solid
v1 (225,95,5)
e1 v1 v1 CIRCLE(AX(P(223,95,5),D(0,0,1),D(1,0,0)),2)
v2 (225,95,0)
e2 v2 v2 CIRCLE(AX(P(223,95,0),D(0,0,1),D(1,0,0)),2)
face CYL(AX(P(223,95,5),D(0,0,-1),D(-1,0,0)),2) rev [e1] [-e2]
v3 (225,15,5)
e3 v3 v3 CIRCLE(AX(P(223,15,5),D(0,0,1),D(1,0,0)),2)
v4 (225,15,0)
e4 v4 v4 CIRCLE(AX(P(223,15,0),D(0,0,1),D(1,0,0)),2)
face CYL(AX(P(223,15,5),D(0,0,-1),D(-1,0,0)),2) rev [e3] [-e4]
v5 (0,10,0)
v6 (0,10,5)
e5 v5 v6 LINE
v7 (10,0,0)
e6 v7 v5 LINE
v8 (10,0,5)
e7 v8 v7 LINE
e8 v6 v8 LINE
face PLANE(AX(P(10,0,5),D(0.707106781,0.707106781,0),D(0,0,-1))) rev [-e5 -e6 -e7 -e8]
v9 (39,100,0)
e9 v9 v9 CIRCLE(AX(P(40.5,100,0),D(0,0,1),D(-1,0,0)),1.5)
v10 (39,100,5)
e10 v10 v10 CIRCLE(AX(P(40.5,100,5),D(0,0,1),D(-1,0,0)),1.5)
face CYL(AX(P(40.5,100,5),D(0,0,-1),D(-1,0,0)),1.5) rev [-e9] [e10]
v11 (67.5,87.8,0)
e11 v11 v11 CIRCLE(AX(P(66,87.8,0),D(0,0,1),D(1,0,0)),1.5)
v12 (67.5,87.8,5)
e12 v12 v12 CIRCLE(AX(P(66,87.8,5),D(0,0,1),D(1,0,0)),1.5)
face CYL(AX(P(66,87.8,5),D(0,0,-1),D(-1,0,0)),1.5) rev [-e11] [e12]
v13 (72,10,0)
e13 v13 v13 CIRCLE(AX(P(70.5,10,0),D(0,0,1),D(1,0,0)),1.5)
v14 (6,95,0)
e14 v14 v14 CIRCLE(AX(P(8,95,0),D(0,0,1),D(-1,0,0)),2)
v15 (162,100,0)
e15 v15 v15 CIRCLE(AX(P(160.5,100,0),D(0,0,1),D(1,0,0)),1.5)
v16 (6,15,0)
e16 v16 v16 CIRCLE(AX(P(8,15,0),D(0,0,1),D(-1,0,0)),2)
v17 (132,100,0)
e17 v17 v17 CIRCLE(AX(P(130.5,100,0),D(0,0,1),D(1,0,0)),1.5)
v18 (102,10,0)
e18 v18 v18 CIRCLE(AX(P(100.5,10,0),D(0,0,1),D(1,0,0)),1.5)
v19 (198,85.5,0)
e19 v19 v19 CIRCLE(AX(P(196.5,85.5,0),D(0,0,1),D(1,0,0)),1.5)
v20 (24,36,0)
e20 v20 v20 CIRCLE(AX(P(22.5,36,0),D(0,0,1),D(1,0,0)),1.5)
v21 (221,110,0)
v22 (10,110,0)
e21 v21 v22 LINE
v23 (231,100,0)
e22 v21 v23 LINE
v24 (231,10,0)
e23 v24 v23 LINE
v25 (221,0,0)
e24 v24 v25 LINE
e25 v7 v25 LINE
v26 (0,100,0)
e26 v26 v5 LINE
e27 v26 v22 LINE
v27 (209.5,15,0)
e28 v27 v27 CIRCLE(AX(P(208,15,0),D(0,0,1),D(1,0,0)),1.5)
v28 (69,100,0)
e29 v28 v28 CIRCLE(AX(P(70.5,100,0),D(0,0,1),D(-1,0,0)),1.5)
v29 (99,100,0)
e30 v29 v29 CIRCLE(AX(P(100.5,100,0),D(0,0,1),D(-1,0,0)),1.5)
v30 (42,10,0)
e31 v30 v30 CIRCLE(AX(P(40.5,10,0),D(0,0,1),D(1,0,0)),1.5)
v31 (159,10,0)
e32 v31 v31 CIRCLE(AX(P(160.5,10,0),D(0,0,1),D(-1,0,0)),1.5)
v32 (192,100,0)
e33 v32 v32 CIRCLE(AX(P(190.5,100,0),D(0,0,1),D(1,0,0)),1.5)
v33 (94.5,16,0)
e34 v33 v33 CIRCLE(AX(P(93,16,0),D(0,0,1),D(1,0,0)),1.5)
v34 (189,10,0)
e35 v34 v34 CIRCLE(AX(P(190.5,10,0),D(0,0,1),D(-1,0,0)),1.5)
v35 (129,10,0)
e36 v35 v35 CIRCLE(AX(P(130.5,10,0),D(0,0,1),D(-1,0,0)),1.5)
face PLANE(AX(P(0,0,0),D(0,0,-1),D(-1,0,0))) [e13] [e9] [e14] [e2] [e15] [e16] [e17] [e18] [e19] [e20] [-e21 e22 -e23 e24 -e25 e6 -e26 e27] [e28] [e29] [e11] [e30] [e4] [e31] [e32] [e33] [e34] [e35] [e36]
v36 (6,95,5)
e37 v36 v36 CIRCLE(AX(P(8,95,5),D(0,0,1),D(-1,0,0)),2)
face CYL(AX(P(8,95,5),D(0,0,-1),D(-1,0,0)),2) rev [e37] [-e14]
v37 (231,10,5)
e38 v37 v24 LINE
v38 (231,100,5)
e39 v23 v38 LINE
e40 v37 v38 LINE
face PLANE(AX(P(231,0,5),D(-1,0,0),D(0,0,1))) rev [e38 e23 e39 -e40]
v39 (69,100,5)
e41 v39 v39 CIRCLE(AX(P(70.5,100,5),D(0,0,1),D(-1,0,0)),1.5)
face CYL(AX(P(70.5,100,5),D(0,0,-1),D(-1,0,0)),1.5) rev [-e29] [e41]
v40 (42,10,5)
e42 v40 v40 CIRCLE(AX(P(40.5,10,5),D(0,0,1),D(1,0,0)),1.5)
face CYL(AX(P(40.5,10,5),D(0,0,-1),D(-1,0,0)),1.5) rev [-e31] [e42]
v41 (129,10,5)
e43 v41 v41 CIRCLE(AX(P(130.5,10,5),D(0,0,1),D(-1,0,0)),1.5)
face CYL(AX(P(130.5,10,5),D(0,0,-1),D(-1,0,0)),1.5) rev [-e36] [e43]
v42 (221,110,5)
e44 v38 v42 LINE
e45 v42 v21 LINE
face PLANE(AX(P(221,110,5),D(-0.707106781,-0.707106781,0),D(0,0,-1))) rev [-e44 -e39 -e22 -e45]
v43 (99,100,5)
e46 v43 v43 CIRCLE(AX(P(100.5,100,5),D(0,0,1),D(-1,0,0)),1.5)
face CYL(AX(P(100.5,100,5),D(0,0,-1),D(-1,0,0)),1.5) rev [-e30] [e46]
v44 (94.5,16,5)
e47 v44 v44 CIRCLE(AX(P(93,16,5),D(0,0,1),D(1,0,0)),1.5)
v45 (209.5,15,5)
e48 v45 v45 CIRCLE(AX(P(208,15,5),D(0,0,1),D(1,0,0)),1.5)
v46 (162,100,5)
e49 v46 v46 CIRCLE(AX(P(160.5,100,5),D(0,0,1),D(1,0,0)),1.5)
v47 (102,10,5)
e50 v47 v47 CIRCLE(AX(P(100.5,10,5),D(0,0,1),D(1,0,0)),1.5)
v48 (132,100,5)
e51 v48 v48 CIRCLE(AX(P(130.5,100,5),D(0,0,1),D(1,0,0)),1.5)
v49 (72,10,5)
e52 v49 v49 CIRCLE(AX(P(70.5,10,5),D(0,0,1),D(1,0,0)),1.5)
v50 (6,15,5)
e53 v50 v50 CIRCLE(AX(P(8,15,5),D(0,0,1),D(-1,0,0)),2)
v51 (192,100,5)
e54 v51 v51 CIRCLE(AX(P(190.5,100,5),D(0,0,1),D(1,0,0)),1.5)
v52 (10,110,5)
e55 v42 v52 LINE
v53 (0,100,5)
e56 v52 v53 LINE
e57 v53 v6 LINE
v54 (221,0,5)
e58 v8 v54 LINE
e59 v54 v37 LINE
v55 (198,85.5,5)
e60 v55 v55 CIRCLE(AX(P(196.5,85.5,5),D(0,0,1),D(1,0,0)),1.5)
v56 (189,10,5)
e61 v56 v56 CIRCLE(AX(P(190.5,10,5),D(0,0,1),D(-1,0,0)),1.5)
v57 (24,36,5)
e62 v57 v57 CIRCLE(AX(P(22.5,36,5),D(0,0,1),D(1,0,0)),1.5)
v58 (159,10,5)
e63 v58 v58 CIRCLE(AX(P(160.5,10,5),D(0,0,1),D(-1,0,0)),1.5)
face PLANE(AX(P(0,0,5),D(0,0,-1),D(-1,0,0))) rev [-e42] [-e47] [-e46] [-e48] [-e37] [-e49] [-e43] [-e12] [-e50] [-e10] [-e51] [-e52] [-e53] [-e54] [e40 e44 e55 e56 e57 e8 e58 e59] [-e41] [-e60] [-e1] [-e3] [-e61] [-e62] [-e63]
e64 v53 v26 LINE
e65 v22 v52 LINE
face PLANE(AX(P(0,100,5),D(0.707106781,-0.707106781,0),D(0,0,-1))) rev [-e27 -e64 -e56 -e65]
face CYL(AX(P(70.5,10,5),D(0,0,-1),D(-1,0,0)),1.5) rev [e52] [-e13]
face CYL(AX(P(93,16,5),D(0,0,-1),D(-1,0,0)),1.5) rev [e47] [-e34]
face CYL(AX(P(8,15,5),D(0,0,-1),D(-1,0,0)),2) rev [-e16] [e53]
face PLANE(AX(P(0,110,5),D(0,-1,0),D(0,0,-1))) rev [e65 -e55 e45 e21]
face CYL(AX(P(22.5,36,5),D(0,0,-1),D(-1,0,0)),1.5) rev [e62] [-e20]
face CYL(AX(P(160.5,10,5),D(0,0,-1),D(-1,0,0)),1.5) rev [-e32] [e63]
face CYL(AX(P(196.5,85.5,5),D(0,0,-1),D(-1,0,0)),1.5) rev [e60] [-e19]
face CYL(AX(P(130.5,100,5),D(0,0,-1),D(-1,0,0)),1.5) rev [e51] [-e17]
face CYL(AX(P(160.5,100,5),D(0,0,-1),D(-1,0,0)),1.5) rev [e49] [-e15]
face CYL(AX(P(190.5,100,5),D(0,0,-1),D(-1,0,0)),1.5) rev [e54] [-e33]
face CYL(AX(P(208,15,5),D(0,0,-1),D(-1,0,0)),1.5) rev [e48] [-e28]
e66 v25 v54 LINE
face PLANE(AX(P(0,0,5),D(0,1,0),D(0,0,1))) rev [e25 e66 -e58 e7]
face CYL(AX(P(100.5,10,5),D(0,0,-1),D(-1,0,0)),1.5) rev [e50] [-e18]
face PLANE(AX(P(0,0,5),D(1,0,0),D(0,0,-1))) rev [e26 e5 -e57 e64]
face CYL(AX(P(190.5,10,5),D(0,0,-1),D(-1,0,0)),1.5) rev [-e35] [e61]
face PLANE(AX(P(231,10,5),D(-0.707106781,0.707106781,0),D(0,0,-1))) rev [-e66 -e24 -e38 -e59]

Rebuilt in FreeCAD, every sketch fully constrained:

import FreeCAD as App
import Part
import Sketcher


def edges_at(feature, points):
    """Names of the edges that pass closest to the given points."""
    edges = feature.Shape.Edges
    near = lambda p: min(range(len(edges)), key=lambda i: edges[i].distToShape(Part.Vertex(*p))[0])
    return sorted({f"Edge{near(p) + 1}" for p in points})


def add_polygon(sketch, points):
    """Adds a closed chain of lines whose ends are joined by coincident constraints."""
    first, n = sketch.GeometryCount, len(points)
    for a, b in zip(points, points[1:] + points[:1]):
        sketch.addGeometry(Part.LineSegment(App.Vector(*a, 0), App.Vector(*b, 0)), False)
    for i in range(n):
        sketch.addConstraint(Sketcher.Constraint("Coincident", first + i, 2, first + (i + 1) % n, 1))

doc = App.newDocument("Part")
body = doc.addObject("PartDesign::Body", "Body")

# Sketch on XY plane
sketch1 = doc.addObject("Sketcher::SketchObject", "Sketch")
body.addObject(sketch1)
sketch1.AttachmentSupport = (doc.XY_Plane, [""])
sketch1.MapMode = "FlatFace"
add_polygon(sketch1, [(0, 110), (0, 0), (231, 0), (231, 110)])  # lines 0-3
sketch1.addGeometry(Part.Circle(App.Vector(8, 15, 0), App.Vector(0, 0, 1), 2), False)  # 4
sketch1.addGeometry(Part.Circle(App.Vector(40.5, 10, 0), App.Vector(0, 0, 1), 1.5), False)  # 5
sketch1.addGeometry(Part.Circle(App.Vector(70.5, 10, 0), App.Vector(0, 0, 1), 1.5), False)  # 6
sketch1.addGeometry(Part.Circle(App.Vector(100.5, 10, 0), App.Vector(0, 0, 1), 1.5), False)  # 7
sketch1.addGeometry(Part.Circle(App.Vector(93, 16, 0), App.Vector(0, 0, 1), 1.5), False)  # 8
sketch1.addGeometry(Part.Circle(App.Vector(22.5, 36, 0), App.Vector(0, 0, 1), 1.5), False)  # 9
sketch1.addGeometry(Part.Circle(App.Vector(130.5, 10, 0), App.Vector(0, 0, 1), 1.5), False)  # 10
sketch1.addGeometry(Part.Circle(App.Vector(160.5, 10, 0), App.Vector(0, 0, 1), 1.5), False)  # 11
sketch1.addGeometry(Part.Circle(App.Vector(190.5, 10, 0), App.Vector(0, 0, 1), 1.5), False)  # 12
sketch1.addGeometry(Part.Circle(App.Vector(208, 15, 0), App.Vector(0, 0, 1), 1.5), False)  # 13
sketch1.addGeometry(Part.Circle(App.Vector(223, 15, 0), App.Vector(0, 0, 1), 2), False)  # 14
sketch1.addGeometry(Part.Circle(App.Vector(8, 95, 0), App.Vector(0, 0, 1), 2), False)  # 15
sketch1.addGeometry(Part.Circle(App.Vector(40.5, 100, 0), App.Vector(0, 0, 1), 1.5), False)  # 16
sketch1.addGeometry(Part.Circle(App.Vector(66, 87.8, 0), App.Vector(0, 0, 1), 1.5), False)  # 17
sketch1.addGeometry(Part.Circle(App.Vector(70.5, 100, 0), App.Vector(0, 0, 1), 1.5), False)  # 18
sketch1.addGeometry(Part.Circle(App.Vector(100.5, 100, 0), App.Vector(0, 0, 1), 1.5), False)  # 19
sketch1.addGeometry(Part.Circle(App.Vector(130.5, 100, 0), App.Vector(0, 0, 1), 1.5), False)  # 20
sketch1.addGeometry(Part.Circle(App.Vector(160.5, 100, 0), App.Vector(0, 0, 1), 1.5), False)  # 21
sketch1.addGeometry(Part.Circle(App.Vector(196.5, 85.5, 0), App.Vector(0, 0, 1), 1.5), False)  # 22
sketch1.addGeometry(Part.Circle(App.Vector(190.5, 100, 0), App.Vector(0, 0, 1), 1.5), False)  # 23
sketch1.addGeometry(Part.Circle(App.Vector(223, 95, 0), App.Vector(0, 0, 1), 2), False)  # 24
sketch1.addConstraint([
    Sketcher.Constraint("Vertical", 0),
    Sketcher.Constraint("Horizontal", 1),
    Sketcher.Constraint("Vertical", 2),
    Sketcher.Constraint("Horizontal", 3),
    Sketcher.Constraint("Coincident", 0, 2, -1, 1),
    Sketcher.Constraint("Equal", 5, 6),
    Sketcher.Constraint("Equal", 6, 7),
    Sketcher.Constraint("Equal", 7, 8),
    Sketcher.Constraint("Equal", 8, 9),
    Sketcher.Constraint("Equal", 9, 10),
    Sketcher.Constraint("Equal", 10, 11),
    Sketcher.Constraint("Equal", 11, 12),
    Sketcher.Constraint("Equal", 12, 13),
    Sketcher.Constraint("Equal", 4, 14),
    Sketcher.Constraint("Equal", 14, 15),
    Sketcher.Constraint("Equal", 13, 16),
    Sketcher.Constraint("Equal", 16, 17),
    Sketcher.Constraint("Equal", 17, 18),
    Sketcher.Constraint("Equal", 18, 19),
    Sketcher.Constraint("Equal", 19, 20),
    Sketcher.Constraint("Equal", 20, 21),
    Sketcher.Constraint("Equal", 21, 22),
    Sketcher.Constraint("Equal", 22, 23),
    Sketcher.Constraint("Equal", 15, 24),
    Sketcher.Constraint("Horizontal", 5, 3, 6, 3),
    Sketcher.Constraint("Horizontal", 6, 3, 7, 3),
    Sketcher.Constraint("Horizontal", 7, 3, 10, 3),
    Sketcher.Constraint("Horizontal", 10, 3, 11, 3),
    Sketcher.Constraint("Horizontal", 11, 3, 12, 3),
    Sketcher.Constraint("Horizontal", 4, 3, 13, 3),
    Sketcher.Constraint("Horizontal", 13, 3, 14, 3),
    Sketcher.Constraint("Horizontal", 16, 3, 18, 3),
    Sketcher.Constraint("Horizontal", 18, 3, 19, 3),
    Sketcher.Constraint("Horizontal", 19, 3, 20, 3),
    Sketcher.Constraint("Horizontal", 20, 3, 21, 3),
    Sketcher.Constraint("Horizontal", 21, 3, 23, 3),
    Sketcher.Constraint("Horizontal", 15, 3, 24, 3),
    Sketcher.Constraint("Vertical", 4, 3, 15, 3),
    Sketcher.Constraint("Vertical", 5, 3, 16, 3),
    Sketcher.Constraint("Vertical", 6, 3, 18, 3),
    Sketcher.Constraint("Vertical", 7, 3, 19, 3),
    Sketcher.Constraint("Vertical", 10, 3, 20, 3),
    Sketcher.Constraint("Vertical", 11, 3, 21, 3),
    Sketcher.Constraint("Vertical", 12, 3, 23, 3),
    Sketcher.Constraint("Vertical", 14, 3, 24, 3),
    Sketcher.Constraint("Diameter", 4, 4.0),
    Sketcher.Constraint("Diameter", 5, 3.0),
    Sketcher.Constraint("DistanceX", 1, 1, 1, 2, 231.0),
    Sketcher.Constraint("DistanceY", 0, 2, 0, 1, 110.0),
    Sketcher.Constraint("DistanceX", -1, 1, 4, 3, 8.0),
    Sketcher.Constraint("DistanceY", -1, 1, 4, 3, 15.0),
    Sketcher.Constraint("DistanceY", -1, 1, 5, 3, 10.0),
    Sketcher.Constraint("DistanceX", -1, 1, 8, 3, 93.0),
    Sketcher.Constraint("DistanceY", -1, 1, 8, 3, 16.0),
    Sketcher.Constraint("DistanceY", -1, 1, 9, 3, 36.0),
    Sketcher.Constraint("DistanceX", -1, 1, 13, 3, 208.0),
    Sketcher.Constraint("DistanceX", -1, 1, 14, 3, 223.0),
    Sketcher.Constraint("DistanceY", -1, 1, 15, 3, 95.0),
    Sketcher.Constraint("DistanceY", -1, 1, 16, 3, 100.0),
    Sketcher.Constraint("DistanceX", -1, 1, 17, 3, 66.0),
    Sketcher.Constraint("DistanceX", 5, 3, 6, 3, 30.0),
    Sketcher.Constraint("DistanceX", 6, 3, 7, 3, 30.0),
    Sketcher.Constraint("DistanceX", 9, 3, 5, 3, 18.0),
    Sketcher.Constraint("DistanceX", 7, 3, 10, 3, 30.0),
    Sketcher.Constraint("DistanceX", 10, 3, 11, 3, 30.0),
    Sketcher.Constraint("DistanceX", 11, 3, 12, 3, 30.0),
    Sketcher.Constraint("DistanceX", 21, 3, 22, 3, 36.0),
    Sketcher.Constraint("DistanceX", -1, 1, 5, 3, 40.5),
    Sketcher.Constraint("DistanceY", -1, 1, 17, 3, 87.8),
    Sketcher.Constraint("DistanceY", -1, 1, 22, 3, 85.5),
])
pad1 = doc.addObject("PartDesign::Pad", "Pad")
body.addObject(pad1)
pad1.Profile = sketch1
pad1.Length = 5
doc.recompute()

chamfer = doc.addObject("PartDesign::Chamfer", "Chamfer")
body.addObject(chamfer)
chamfer.Base = (pad1, edges_at(pad1, [
    (0, 110, 2.5),
    (231, 110, 2.5),
    (231, 0, 2.5),
    (0, 0, 2.5),
]))
chamfer.Size = 10

doc.recompute()
